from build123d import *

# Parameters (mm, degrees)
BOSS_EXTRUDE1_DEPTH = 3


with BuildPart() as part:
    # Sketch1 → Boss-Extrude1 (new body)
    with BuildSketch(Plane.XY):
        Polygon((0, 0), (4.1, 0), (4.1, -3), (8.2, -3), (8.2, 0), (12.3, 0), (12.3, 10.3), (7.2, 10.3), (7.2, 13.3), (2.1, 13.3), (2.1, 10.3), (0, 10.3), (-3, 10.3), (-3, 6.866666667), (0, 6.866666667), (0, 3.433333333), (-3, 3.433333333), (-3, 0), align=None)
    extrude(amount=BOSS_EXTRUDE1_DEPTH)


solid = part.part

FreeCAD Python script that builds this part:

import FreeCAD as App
import Part
import Sketcher
from FreeCAD import Vector

doc = App.newDocument("Part")
params = doc.addObject("Spreadsheet::Sheet", "Params")
for row, (alias, value) in enumerate([
    ("sketch1_width", "3 mm"),
    ("sketch1_width2", "4.1 mm"),
    ("sketch1_width3", "5.1 mm"),
    ("sketch1_height", "10.3 mm"),
    ("pad1_length", "3 mm"),
], start=1):
    params.set(f"A{row}", alias)
    params.set(f"B{row}", "=" + value)
    params.setAlias(f"B{row}", alias)

body = doc.addObject("PartDesign::Body", "Body")

# Sketch on XY plane
sketch1 = body.newObject("Sketcher::SketchObject", "Sketch")
sketch1.AttachmentSupport = (doc.getObject("XY_Plane"), [""])
sketch1.MapMode = "FlatFace"
sketch1.addGeometry(Part.LineSegment(Vector(4.1, 0, 0), Vector(4.1, -3, 0)), False)
sketch1.addGeometry(Part.LineSegment(Vector(4.1, -3, 0), Vector(8.2, -3, 0)), False)
sketch1.addGeometry(Part.LineSegment(Vector(8.2, -3, 0), Vector(8.2, 0, 0)), False)
sketch1.addGeometry(Part.LineSegment(Vector(8.2, 0, 0), Vector(12.3, 0, 0)), False)
sketch1.addGeometry(Part.LineSegment(Vector(12.3, 0, 0), Vector(12.3, 10.3, 0)), False)
sketch1.addGeometry(Part.LineSegment(Vector(12.3, 10.3, 0), Vector(7.2, 10.3, 0)), False)
sketch1.addGeometry(Part.LineSegment(Vector(7.2, 10.3, 0), Vector(7.2, 13.3, 0)), False)
sketch1.addGeometry(Part.LineSegment(Vector(7.2, 13.3, 0), Vector(2.1, 13.3, 0)), False)
sketch1.addGeometry(Part.LineSegment(Vector(2.1, 13.3, 0), Vector(2.1, 10.3, 0)), False)
sketch1.addGeometry(Part.LineSegment(Vector(2.1, 10.3, 0), Vector(-3, 10.3, 0)), False)
sketch1.addGeometry(Part.LineSegment(Vector(-3, 10.3, 0), Vector(-3, 6.9, 0)), False)
sketch1.addGeometry(Part.LineSegment(Vector(-3, 6.9, 0), Vector(0, 6.9, 0)), False)
sketch1.addGeometry(Part.LineSegment(Vector(0, 6.9, 0), Vector(0, 3.4, 0)), False)
sketch1.addGeometry(Part.LineSegment(Vector(0, 3.4, 0), Vector(-3, 3.4, 0)), False)
sketch1.addGeometry(Part.LineSegment(Vector(-3, 3.4, 0), Vector(-3, 0, 0)), False)
sketch1.addGeometry(Part.LineSegment(Vector(-3, 0, 0), Vector(4.1, 0, 0)), False)
sketch1.addConstraint(Sketcher.Constraint("Coincident", 0, 2, 1, 1))
sketch1.addConstraint(Sketcher.Constraint("Coincident", 1, 2, 2, 1))
sketch1.addConstraint(Sketcher.Constraint("Coincident", 2, 2, 3, 1))
sketch1.addConstraint(Sketcher.Constraint("Coincident", 3, 2, 4, 1))
sketch1.addConstraint(Sketcher.Constraint("Coincident", 4, 2, 5, 1))
sketch1.addConstraint(Sketcher.Constraint("Coincident", 5, 2, 6, 1))
sketch1.addConstraint(Sketcher.Constraint("Coincident", 6, 2, 7, 1))
sketch1.addConstraint(Sketcher.Constraint("Coincident", 7, 2, 8, 1))
sketch1.addConstraint(Sketcher.Constraint("Coincident", 8, 2, 9, 1))
sketch1.addConstraint(Sketcher.Constraint("Coincident", 9, 2, 10, 1))
sketch1.addConstraint(Sketcher.Constraint("Coincident", 10, 2, 11, 1))
sketch1.addConstraint(Sketcher.Constraint("Coincident", 11, 2, 12, 1))
sketch1.addConstraint(Sketcher.Constraint("Coincident", 12, 2, 13, 1))
sketch1.addConstraint(Sketcher.Constraint("Coincident", 13, 2, 14, 1))
sketch1.addConstraint(Sketcher.Constraint("Coincident", 14, 2, 15, 1))
sketch1.addConstraint(Sketcher.Constraint("Coincident", 15, 2, 0, 1))
sketch1.addConstraint(Sketcher.Constraint("Vertical", 0))
sketch1.addConstraint(Sketcher.Constraint("Horizontal", 1))
sketch1.addConstraint(Sketcher.Constraint("Vertical", 2))
sketch1.addConstraint(Sketcher.Constraint("Horizontal", 3))
sketch1.addConstraint(Sketcher.Constraint("Vertical", 4))
sketch1.addConstraint(Sketcher.Constraint("Horizontal", 5))
sketch1.addConstraint(Sketcher.Constraint("Vertical", 6))
sketch1.addConstraint(Sketcher.Constraint("Horizontal", 7))
sketch1.addConstraint(Sketcher.Constraint("Vertical", 8))
sketch1.addConstraint(Sketcher.Constraint("Horizontal", 9))
sketch1.addConstraint(Sketcher.Constraint("Vertical", 10))
sketch1.addConstraint(Sketcher.Constraint("Horizontal", 11))
sketch1.addConstraint(Sketcher.Constraint("Vertical", 12))
sketch1.addConstraint(Sketcher.Constraint("Horizontal", 13))
sketch1.addConstraint(Sketcher.Constraint("Vertical", 14))
sketch1.addConstraint(Sketcher.Constraint("Horizontal", 15))
sketch1.addConstraint(Sketcher.Constraint("PointOnObject", 2, 2, -1))
sketch1.addConstraint(Sketcher.Constraint("PointOnObject", 11, 2, -2))
sketch1.addConstraint(Sketcher.Constraint("PointOnObject", 14, 2, -1))
sketch1.addConstraint(Sketcher.Constraint("Horizontal", 5, 2, 8, 2))
sketch1.addConstraint(Sketcher.Constraint("Vertical", 10, 2, 13, 2))
sketch1.addConstraint(Sketcher.Constraint("Equal", 1, 3))
sketch1.addConstraint(Sketcher.Constraint("Equal", 5, 7))
sketch1.addConstraint(Sketcher.Constraint("Equal", 7, 9))
sketch1.addConstraint(Sketcher.Constraint("Equal", 13, 0))
sketch1.addConstraint(Sketcher.Constraint("Equal", 2, 6))
sketch1.addConstraint(Sketcher.Constraint("Equal", 10, 12))
sketch1.addConstraint(Sketcher.Constraint("Equal", 12, 14))
sketch1.addConstraint(Sketcher.Constraint("DistanceX", 11, 1, 11, 2, 3.0))
sketch1.addConstraint(Sketcher.Constraint("DistanceX", 1, 1, 1, 2, 4.1))
sketch1.addConstraint(Sketcher.Constraint("DistanceX", 5, 2, 5, 1, 5.1))
sketch1.addConstraint(Sketcher.Constraint("DistanceY", 4, 1, 4, 2, 10.3))
sketch1.setExpression("Constraints[44]", "Params.sketch1_width")
sketch1.setExpression("Constraints[45]", "Params.sketch1_width2")
sketch1.setExpression("Constraints[46]", "Params.sketch1_width3")
sketch1.setExpression("Constraints[47]", "Params.sketch1_height")
pad1 = body.newObject("PartDesign::Pad", "Pad")
pad1.Profile = sketch1
pad1.setExpression("Length", "Params.pad1_length")

doc.recompute()
